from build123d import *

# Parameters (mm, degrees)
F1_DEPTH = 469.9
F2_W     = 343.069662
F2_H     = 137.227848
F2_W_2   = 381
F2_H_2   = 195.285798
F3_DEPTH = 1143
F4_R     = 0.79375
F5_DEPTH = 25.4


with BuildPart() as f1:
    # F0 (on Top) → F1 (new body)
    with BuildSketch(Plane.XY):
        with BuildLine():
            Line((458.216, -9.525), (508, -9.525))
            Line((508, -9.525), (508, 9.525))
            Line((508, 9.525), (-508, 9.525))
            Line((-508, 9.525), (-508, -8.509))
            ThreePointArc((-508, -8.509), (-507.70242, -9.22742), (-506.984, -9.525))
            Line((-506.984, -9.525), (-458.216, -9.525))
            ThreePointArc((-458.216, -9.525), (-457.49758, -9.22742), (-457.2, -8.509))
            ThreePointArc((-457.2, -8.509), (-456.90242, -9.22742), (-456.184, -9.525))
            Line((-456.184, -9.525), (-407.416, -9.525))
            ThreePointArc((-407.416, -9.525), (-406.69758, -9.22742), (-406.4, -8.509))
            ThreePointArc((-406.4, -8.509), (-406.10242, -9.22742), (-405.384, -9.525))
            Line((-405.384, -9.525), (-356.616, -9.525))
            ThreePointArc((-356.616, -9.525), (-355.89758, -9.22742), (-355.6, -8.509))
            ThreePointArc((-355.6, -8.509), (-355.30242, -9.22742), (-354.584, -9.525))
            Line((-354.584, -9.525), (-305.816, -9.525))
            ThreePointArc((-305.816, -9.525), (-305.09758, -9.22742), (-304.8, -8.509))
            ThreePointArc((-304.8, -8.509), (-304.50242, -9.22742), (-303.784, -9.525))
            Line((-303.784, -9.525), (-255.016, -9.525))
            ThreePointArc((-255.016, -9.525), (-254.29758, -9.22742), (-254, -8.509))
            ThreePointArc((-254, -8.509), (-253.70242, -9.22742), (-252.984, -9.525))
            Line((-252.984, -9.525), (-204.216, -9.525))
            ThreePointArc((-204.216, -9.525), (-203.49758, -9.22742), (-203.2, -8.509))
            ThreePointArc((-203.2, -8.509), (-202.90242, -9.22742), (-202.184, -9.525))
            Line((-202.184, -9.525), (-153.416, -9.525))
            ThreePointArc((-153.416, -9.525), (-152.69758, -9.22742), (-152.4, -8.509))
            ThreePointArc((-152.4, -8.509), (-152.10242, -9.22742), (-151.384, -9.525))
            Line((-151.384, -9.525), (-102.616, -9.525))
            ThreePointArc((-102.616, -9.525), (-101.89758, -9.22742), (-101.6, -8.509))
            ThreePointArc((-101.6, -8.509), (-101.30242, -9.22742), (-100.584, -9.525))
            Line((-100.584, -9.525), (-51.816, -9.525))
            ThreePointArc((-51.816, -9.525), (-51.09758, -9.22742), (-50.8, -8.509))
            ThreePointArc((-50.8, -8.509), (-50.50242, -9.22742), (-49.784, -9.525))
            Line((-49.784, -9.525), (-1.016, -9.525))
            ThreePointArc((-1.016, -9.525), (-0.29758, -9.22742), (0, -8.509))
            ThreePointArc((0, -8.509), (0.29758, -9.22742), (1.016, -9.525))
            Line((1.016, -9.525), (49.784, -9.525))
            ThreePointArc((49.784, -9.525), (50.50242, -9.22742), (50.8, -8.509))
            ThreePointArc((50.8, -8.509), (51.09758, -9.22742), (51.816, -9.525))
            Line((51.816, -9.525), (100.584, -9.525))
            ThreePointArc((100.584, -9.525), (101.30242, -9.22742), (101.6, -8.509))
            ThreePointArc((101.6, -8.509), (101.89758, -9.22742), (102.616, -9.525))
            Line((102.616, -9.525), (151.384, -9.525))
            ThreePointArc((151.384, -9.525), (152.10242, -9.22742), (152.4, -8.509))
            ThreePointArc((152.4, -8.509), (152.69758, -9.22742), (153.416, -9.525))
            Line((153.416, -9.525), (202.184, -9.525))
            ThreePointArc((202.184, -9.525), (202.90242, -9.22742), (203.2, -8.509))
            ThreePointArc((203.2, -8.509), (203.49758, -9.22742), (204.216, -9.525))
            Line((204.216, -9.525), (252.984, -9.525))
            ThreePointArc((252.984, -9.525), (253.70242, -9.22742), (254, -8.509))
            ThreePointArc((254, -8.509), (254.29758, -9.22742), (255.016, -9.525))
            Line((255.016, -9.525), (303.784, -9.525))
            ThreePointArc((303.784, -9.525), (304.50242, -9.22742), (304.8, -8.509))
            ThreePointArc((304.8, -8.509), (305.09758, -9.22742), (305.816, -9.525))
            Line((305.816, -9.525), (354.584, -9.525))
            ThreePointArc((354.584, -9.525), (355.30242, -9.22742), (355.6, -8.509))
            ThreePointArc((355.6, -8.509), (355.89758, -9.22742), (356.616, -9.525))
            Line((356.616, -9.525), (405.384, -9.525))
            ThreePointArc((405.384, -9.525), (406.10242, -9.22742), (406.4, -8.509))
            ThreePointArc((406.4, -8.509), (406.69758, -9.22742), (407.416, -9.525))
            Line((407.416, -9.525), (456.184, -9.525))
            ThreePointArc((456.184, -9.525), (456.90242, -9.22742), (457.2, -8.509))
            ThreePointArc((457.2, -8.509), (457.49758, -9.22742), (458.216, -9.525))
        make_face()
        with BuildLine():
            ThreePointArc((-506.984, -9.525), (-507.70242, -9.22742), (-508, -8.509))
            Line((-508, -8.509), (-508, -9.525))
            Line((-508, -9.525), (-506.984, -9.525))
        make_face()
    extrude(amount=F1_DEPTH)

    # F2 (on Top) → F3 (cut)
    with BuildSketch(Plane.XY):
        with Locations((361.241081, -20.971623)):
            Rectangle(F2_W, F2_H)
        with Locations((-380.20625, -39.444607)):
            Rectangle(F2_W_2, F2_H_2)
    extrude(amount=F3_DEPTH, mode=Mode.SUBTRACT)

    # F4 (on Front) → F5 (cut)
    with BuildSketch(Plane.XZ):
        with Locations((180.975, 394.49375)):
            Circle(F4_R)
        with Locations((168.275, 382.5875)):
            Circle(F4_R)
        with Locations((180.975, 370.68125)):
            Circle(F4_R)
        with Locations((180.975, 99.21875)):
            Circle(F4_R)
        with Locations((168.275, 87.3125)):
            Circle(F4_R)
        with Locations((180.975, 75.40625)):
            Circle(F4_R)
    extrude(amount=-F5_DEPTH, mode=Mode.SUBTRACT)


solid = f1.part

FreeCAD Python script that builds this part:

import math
import FreeCAD as App
import Part
import Sketcher

V = App.Vector
Q = App.Units.Quantity

doc = App.newDocument("Part")
params = doc.addObject("Spreadsheet::Sheet", "Params")
for row, (alias, value) in enumerate([
    ("sketch1_width", "40 in"),
    ("sketch1_radius", "0.0400001 in"),
    ("sketch1_height", "0.75 in"),
    ("pad1_length", "18.5 in"),
    ("sketch2_width", "15 in"),
    ("pocket1_length", "45 in"),
    ("sketch3_diameter", "0.0625 in"),
    ("pocket2_length", "1 in"),
], start=1):
    params.set(f"A{row}", alias)
    params.set(f"B{row}", "=" + value)
    params.setAlias(f"B{row}", alias)

body = doc.addObject("PartDesign::Body", "Body")

# Sketch on XY plane
sketch1 = body.newObject("Sketcher::SketchObject", "Sketch")
sketch1.AttachmentSupport = (doc.getObject("XY_Plane"), [""])
sketch1.MapMode = "FlatFace"
sketch1.addGeometry([
    Part.LineSegment(V(458.216, -9.525, 0), V(508, -9.525, 0)),  # 0
    Part.LineSegment(V(508, -9.525, 0), V(508, 9.525, 0)),  # 1
    Part.LineSegment(V(508, 9.525, 0), V(-508, 9.525, 0)),  # 2
    Part.LineSegment(V(-508, 9.525, 0), V(-508, -9.525, 0)),  # 3
    Part.LineSegment(V(-508, -9.525, 0), V(-458.216, -9.525, 0)),  # 4
    Part.ArcOfCircle(Part.Circle(V(-458.216002, -8.508998, 0), V(0, 0, 1), 1.016002), math.radians(-89.999906), math.radians(-0.000094)),  # 5
    Part.ArcOfCircle(Part.Circle(V(-456.183998, -8.508998, 0), V(0, 0, 1), 1.016002), math.radians(-179.999906), math.radians(-90.000094)),  # 6
    Part.LineSegment(V(-456.184, -9.525, 0), V(-407.416, -9.525, 0)),  # 7
    Part.ArcOfCircle(Part.Circle(V(-407.416002, -8.508998, 0), V(0, 0, 1), 1.016002), math.radians(-89.999906), math.radians(-0.000094)),  # 8
    Part.ArcOfCircle(Part.Circle(V(-405.383998, -8.508998, 0), V(0, 0, 1), 1.016002), math.radians(-179.999906), math.radians(-90.000094)),  # 9
    Part.LineSegment(V(-405.384, -9.525, 0), V(-356.616, -9.525, 0)),  # 10
    Part.ArcOfCircle(Part.Circle(V(-356.616002, -8.508998, 0), V(0, 0, 1), 1.016002), math.radians(-89.999906), math.radians(-0.000094)),  # 11
    Part.ArcOfCircle(Part.Circle(V(-354.583998, -8.508998, 0), V(0, 0, 1), 1.016002), math.radians(-179.999906), math.radians(-90.000094)),  # 12
    Part.LineSegment(V(-354.584, -9.525, 0), V(-305.816, -9.525, 0)),  # 13
    Part.ArcOfCircle(Part.Circle(V(-305.816002, -8.508998, 0), V(0, 0, 1), 1.016002), math.radians(-89.999906), math.radians(-0.000094)),  # 14
    Part.ArcOfCircle(Part.Circle(V(-303.783998, -8.508998, 0), V(0, 0, 1), 1.016002), math.radians(-179.999906), math.radians(-90.000094)),  # 15
    Part.LineSegment(V(-303.784, -9.525, 0), V(-255.016, -9.525, 0)),  # 16
    Part.ArcOfCircle(Part.Circle(V(-255.016002, -8.508998, 0), V(0, 0, 1), 1.016002), math.radians(-89.999906), math.radians(-0.000094)),  # 17
    Part.ArcOfCircle(Part.Circle(V(-252.983998, -8.508998, 0), V(0, 0, 1), 1.016002), math.radians(-179.999906), math.radians(-90.000094)),  # 18
    Part.LineSegment(V(-252.984, -9.525, 0), V(-204.216, -9.525, 0)),  # 19
    Part.ArcOfCircle(Part.Circle(V(-204.216002, -8.508998, 0), V(0, 0, 1), 1.016002), math.radians(-89.999906), math.radians(-0.000094)),  # 20
    Part.ArcOfCircle(Part.Circle(V(-202.183998, -8.508998, 0), V(0, 0, 1), 1.016002), math.radians(-179.999906), math.radians(-90.000094)),  # 21
    Part.LineSegment(V(-202.184, -9.525, 0), V(-153.416, -9.525, 0)),  # 22
    Part.ArcOfCircle(Part.Circle(V(-153.416002, -8.508998, 0), V(0, 0, 1), 1.016002), math.radians(-89.999906), math.radians(-0.000094)),  # 23
    Part.ArcOfCircle(Part.Circle(V(-151.383998, -8.508998, 0), V(0, 0, 1), 1.016002), math.radians(-179.999906), math.radians(-90.000094)),  # 24
    Part.LineSegment(V(-151.384, -9.525, 0), V(-102.616, -9.525, 0)),  # 25
    Part.ArcOfCircle(Part.Circle(V(-102.616002, -8.508998, 0), V(0, 0, 1), 1.016002), math.radians(-89.999906), math.radians(-0.000094)),  # 26
    Part.ArcOfCircle(Part.Circle(V(-100.583998, -8.508998, 0), V(0, 0, 1), 1.016002), math.radians(-179.999906), math.radians(-90.000094)),  # 27
    Part.LineSegment(V(-100.584, -9.525, 0), V(-51.816, -9.525, 0)),  # 28
    Part.ArcOfCircle(Part.Circle(V(-51.816002, -8.508998, 0), V(0, 0, 1), 1.016002), math.radians(-89.999906), math.radians(-0.000094)),  # 29
    Part.ArcOfCircle(Part.Circle(V(-49.783998, -8.508998, 0), V(0, 0, 1), 1.016002), math.radians(-179.999906), math.radians(-90.000094)),  # 30
    Part.LineSegment(V(-49.784, -9.525, 0), V(-1.016, -9.525, 0)),  # 31
    Part.ArcOfCircle(Part.Circle(V(-1.016002, -8.508998, 0), V(0, 0, 1), 1.016002), math.radians(-89.999906), math.radians(-0.000094)),  # 32
    Part.ArcOfCircle(Part.Circle(V(1.016002, -8.508998, 0), V(0, 0, 1), 1.016002), math.radians(-179.999906), math.radians(-90.000094)),  # 33
    Part.LineSegment(V(1.016, -9.525, 0), V(49.784, -9.525, 0)),  # 34
    Part.ArcOfCircle(Part.Circle(V(49.783998, -8.508998, 0), V(0, 0, 1), 1.016002), math.radians(-89.999906), math.radians(-0.000094)),  # 35
    Part.ArcOfCircle(Part.Circle(V(51.816002, -8.508998, 0), V(0, 0, 1), 1.016002), math.radians(-179.999906), math.radians(-90.000094)),  # 36
    Part.LineSegment(V(51.816, -9.525, 0), V(100.584, -9.525, 0)),  # 37
    Part.ArcOfCircle(Part.Circle(V(100.583998, -8.508998, 0), V(0, 0, 1), 1.016002), math.radians(-89.999906), math.radians(-0.000094)),  # 38
    Part.ArcOfCircle(Part.Circle(V(102.616002, -8.508998, 0), V(0, 0, 1), 1.016002), math.radians(-179.999906), math.radians(-90.000094)),  # 39
    Part.LineSegment(V(102.616, -9.525, 0), V(151.384, -9.525, 0)),  # 40
    Part.ArcOfCircle(Part.Circle(V(151.383998, -8.508998, 0), V(0, 0, 1), 1.016002), math.radians(-89.999906), math.radians(-0.000094)),  # 41
    Part.ArcOfCircle(Part.Circle(V(153.416002, -8.508998, 0), V(0, 0, 1), 1.016002), math.radians(-179.999906), math.radians(-90.000094)),  # 42
    Part.LineSegment(V(153.416, -9.525, 0), V(202.184, -9.525, 0)),  # 43
    Part.ArcOfCircle(Part.Circle(V(202.183998, -8.508998, 0), V(0, 0, 1), 1.016002), math.radians(-89.999906), math.radians(-0.000094)),  # 44
    Part.ArcOfCircle(Part.Circle(V(204.216002, -8.508998, 0), V(0, 0, 1), 1.016002), math.radians(-179.999906), math.radians(-90.000094)),  # 45
    Part.LineSegment(V(204.216, -9.525, 0), V(252.984, -9.525, 0)),  # 46
    Part.ArcOfCircle(Part.Circle(V(252.983998, -8.508998, 0), V(0, 0, 1), 1.016002), math.radians(-89.999906), math.radians(-0.000094)),  # 47
    Part.ArcOfCircle(Part.Circle(V(255.016002, -8.508998, 0), V(0, 0, 1), 1.016002), math.radians(-179.999906), math.radians(-90.000094)),  # 48
    Part.LineSegment(V(255.016, -9.525, 0), V(303.784, -9.525, 0)),  # 49
    Part.ArcOfCircle(Part.Circle(V(303.783998, -8.508998, 0), V(0, 0, 1), 1.016002), math.radians(-89.999906), math.radians(-0.000094)),  # 50
    Part.ArcOfCircle(Part.Circle(V(305.816002, -8.508998, 0), V(0, 0, 1), 1.016002), math.radians(-179.999906), math.radians(-90.000094)),  # 51
    Part.LineSegment(V(305.816, -9.525, 0), V(354.584, -9.525, 0)),  # 52
    Part.ArcOfCircle(Part.Circle(V(354.583998, -8.508998, 0), V(0, 0, 1), 1.016002), math.radians(-89.999906), math.radians(-0.000094)),  # 53
    Part.ArcOfCircle(Part.Circle(V(356.616002, -8.508998, 0), V(0, 0, 1), 1.016002), math.radians(-179.999906), math.radians(-90.000094)),  # 54
    Part.LineSegment(V(356.616, -9.525, 0), V(405.384, -9.525, 0)),  # 55
    Part.ArcOfCircle(Part.Circle(V(405.383998, -8.508998, 0), V(0, 0, 1), 1.016002), math.radians(-89.999906), math.radians(-0.000094)),  # 56
    Part.ArcOfCircle(Part.Circle(V(407.416002, -8.508998, 0), V(0, 0, 1), 1.016002), math.radians(-179.999906), math.radians(-90.000094)),  # 57
    Part.LineSegment(V(407.416, -9.525, 0), V(456.184, -9.525, 0)),  # 58
    Part.ArcOfCircle(Part.Circle(V(456.183998, -8.508998, 0), V(0, 0, 1), 1.016002), math.radians(-89.999906), math.radians(-0.000094)),  # 59
    Part.ArcOfCircle(Part.Circle(V(458.216002, -8.508998, 0), V(0, 0, 1), 1.016002), math.radians(-179.999906), math.radians(-90.000094)),  # 60
], False)
sketch1.addConstraint([
    Sketcher.Constraint("Coincident", 0, 2, 1, 1),
    Sketcher.Constraint("Coincident", 1, 2, 2, 1),
    Sketcher.Constraint("Coincident", 2, 2, 3, 1),
    Sketcher.Constraint("Coincident", 3, 2, 4, 1),
    Sketcher.Constraint("Tangent", 4, 2, 5, 1),
    Sketcher.Constraint("Coincident", 5, 2, 6, 1),
    Sketcher.Constraint("Tangent", 6, 2, 7, 1),
    Sketcher.Constraint("Tangent", 7, 2, 8, 1),
    Sketcher.Constraint("Coincident", 8, 2, 9, 1),
    Sketcher.Constraint("Tangent", 9, 2, 10, 1),
    Sketcher.Constraint("Tangent", 10, 2, 11, 1),
    Sketcher.Constraint("Coincident", 11, 2, 12, 1),
    Sketcher.Constraint("Tangent", 12, 2, 13, 1),
    Sketcher.Constraint("Tangent", 13, 2, 14, 1),
    Sketcher.Constraint("Coincident", 14, 2, 15, 1),
    Sketcher.Constraint("Tangent", 15, 2, 16, 1),
    Sketcher.Constraint("Tangent", 16, 2, 17, 1),
    Sketcher.Constraint("Coincident", 17, 2, 18, 1),
    Sketcher.Constraint("Tangent", 18, 2, 19, 1),
    Sketcher.Constraint("Tangent", 19, 2, 20, 1),
    Sketcher.Constraint("Coincident", 20, 2, 21, 1),
    Sketcher.Constraint("Tangent", 21, 2, 22, 1),
    Sketcher.Constraint("Tangent", 22, 2, 23, 1),
    Sketcher.Constraint("Coincident", 23, 2, 24, 1),
    Sketcher.Constraint("Tangent", 24, 2, 25, 1),
    Sketcher.Constraint("Tangent", 25, 2, 26, 1),
    Sketcher.Constraint("Coincident", 26, 2, 27, 1),
    Sketcher.Constraint("Tangent", 27, 2, 28, 1),
    Sketcher.Constraint("Tangent", 28, 2, 29, 1),
    Sketcher.Constraint("Coincident", 29, 2, 30, 1),
    Sketcher.Constraint("Tangent", 30, 2, 31, 1),
    Sketcher.Constraint("Tangent", 31, 2, 32, 1),
    Sketcher.Constraint("Coincident", 32, 2, 33, 1),
    Sketcher.Constraint("Tangent", 33, 2, 34, 1),
    Sketcher.Constraint("Tangent", 34, 2, 35, 1),
    Sketcher.Constraint("Coincident", 35, 2, 36, 1),
    Sketcher.Constraint("Tangent", 36, 2, 37, 1),
    Sketcher.Constraint("Tangent", 37, 2, 38, 1),
    Sketcher.Constraint("Coincident", 38, 2, 39, 1),
    Sketcher.Constraint("Tangent", 39, 2, 40, 1),
    Sketcher.Constraint("Tangent", 40, 2, 41, 1),
    Sketcher.Constraint("Coincident", 41, 2, 42, 1),
    Sketcher.Constraint("Tangent", 42, 2, 43, 1),
    Sketcher.Constraint("Tangent", 43, 2, 44, 1),
    Sketcher.Constraint("Coincident", 44, 2, 45, 1),
    Sketcher.Constraint("Tangent", 45, 2, 46, 1),
    Sketcher.Constraint("Tangent", 46, 2, 47, 1),
    Sketcher.Constraint("Coincident", 47, 2, 48, 1),
    Sketcher.Constraint("Tangent", 48, 2, 49, 1),
    Sketcher.Constraint("Tangent", 49, 2, 50, 1),
    Sketcher.Constraint("Coincident", 50, 2, 51, 1),
    Sketcher.Constraint("Tangent", 51, 2, 52, 1),
    Sketcher.Constraint("Tangent", 52, 2, 53, 1),
    Sketcher.Constraint("Coincident", 53, 2, 54, 1),
    Sketcher.Constraint("Tangent", 54, 2, 55, 1),
    Sketcher.Constraint("Tangent", 55, 2, 56, 1),
    Sketcher.Constraint("Coincident", 56, 2, 57, 1),
    Sketcher.Constraint("Tangent", 57, 2, 58, 1),
    Sketcher.Constraint("Tangent", 58, 2, 59, 1),
    Sketcher.Constraint("Coincident", 59, 2, 60, 1),
    Sketcher.Constraint("Tangent", 60, 2, 0, 1),
    Sketcher.Constraint("Horizontal", 0),
    Sketcher.Constraint("Vertical", 1),
    Sketcher.Constraint("Horizontal", 2),
    Sketcher.Constraint("Vertical", 3),
    Sketcher.Constraint("Horizontal", 4),
    Sketcher.Constraint("Horizontal", 7),
    Sketcher.Constraint("Horizontal", 10),
    Sketcher.Constraint("Horizontal", 13),
    Sketcher.Constraint("Horizontal", 16),
    Sketcher.Constraint("Horizontal", 19),
    Sketcher.Constraint("Horizontal", 22),
    Sketcher.Constraint("Horizontal", 25),
    Sketcher.Constraint("Horizontal", 28),
    Sketcher.Constraint("Horizontal", 31),
    Sketcher.Constraint("Horizontal", 34),
    Sketcher.Constraint("Horizontal", 37),
    Sketcher.Constraint("Horizontal", 40),
    Sketcher.Constraint("Horizontal", 43),
    Sketcher.Constraint("Horizontal", 46),
    Sketcher.Constraint("Horizontal", 49),
    Sketcher.Constraint("Horizontal", 52),
    Sketcher.Constraint("Horizontal", 55),
    Sketcher.Constraint("Horizontal", 58),
    Sketcher.Constraint("Equal", 5, 6),
    Sketcher.Constraint("Equal", 6, 8),
    Sketcher.Constraint("Equal", 8, 9),
    Sketcher.Constraint("Equal", 9, 11),
    Sketcher.Constraint("Equal", 11, 12),
    Sketcher.Constraint("Equal", 12, 14),
    Sketcher.Constraint("Equal", 14, 15),
    Sketcher.Constraint("Equal", 15, 17),
    Sketcher.Constraint("Equal", 17, 18),
    Sketcher.Constraint("Equal", 18, 20),
    Sketcher.Constraint("Equal", 20, 21),
    Sketcher.Constraint("Equal", 21, 23),
    Sketcher.Constraint("Equal", 23, 24),
    Sketcher.Constraint("Equal", 24, 26),
    Sketcher.Constraint("Equal", 26, 27),
    Sketcher.Constraint("Equal", 27, 29),
    Sketcher.Constraint("Equal", 29, 30),
    Sketcher.Constraint("Equal", 30, 32),
    Sketcher.Constraint("Equal", 32, 33),
    Sketcher.Constraint("Equal", 33, 35),
    Sketcher.Constraint("Equal", 35, 36),
    Sketcher.Constraint("Equal", 36, 38),
    Sketcher.Constraint("Equal", 38, 39),
    Sketcher.Constraint("Equal", 39, 41),
    Sketcher.Constraint("Equal", 41, 42),
    Sketcher.Constraint("Equal", 42, 44),
    Sketcher.Constraint("Equal", 44, 45),
    Sketcher.Constraint("Equal", 45, 47),
    Sketcher.Constraint("Equal", 47, 48),
    Sketcher.Constraint("Equal", 48, 50),
    Sketcher.Constraint("Equal", 50, 51),
    Sketcher.Constraint("Equal", 51, 53),
    Sketcher.Constraint("Equal", 53, 54),
    Sketcher.Constraint("Equal", 54, 56),
    Sketcher.Constraint("Equal", 56, 57),
    Sketcher.Constraint("Equal", 57, 59),
    Sketcher.Constraint("Equal", 59, 60),
    Sketcher.Constraint("Symmetric", 0, 2, 2, 2, -1, 1),
    Sketcher.Constraint("Symmetric", 32, 3, 33, 3, -2),
    Sketcher.Constraint("Symmetric", 29, 3, 36, 3, -2),
    Sketcher.Constraint("Symmetric", 26, 3, 39, 3, -2),
    Sketcher.Constraint("Symmetric", 23, 3, 42, 3, -2),
    Sketcher.Constraint("Symmetric", 20, 3, 45, 3, -2),
    Sketcher.Constraint("Symmetric", 17, 3, 48, 3, -2),
    Sketcher.Constraint("Symmetric", 14, 3, 51, 3, -2),
    Sketcher.Constraint("Symmetric", 11, 3, 54, 3, -2),
    Sketcher.Constraint("Symmetric", 8, 3, 57, 3, -2),
    Sketcher.Constraint("Symmetric", 5, 3, 60, 3, -2),
    Sketcher.Constraint("Horizontal", 5, 3, 6, 3),
    Sketcher.Constraint("Horizontal", 8, 3, 9, 3),
    Sketcher.Constraint("Horizontal", 11, 3, 12, 3),
    Sketcher.Constraint("Horizontal", 14, 3, 15, 3),
    Sketcher.Constraint("Horizontal", 17, 3, 18, 3),
    Sketcher.Constraint("Horizontal", 20, 3, 21, 3),
    Sketcher.Constraint("Horizontal", 23, 3, 24, 3),
    Sketcher.Constraint("Horizontal", 26, 3, 27, 3),
    Sketcher.Constraint("Horizontal", 29, 3, 30, 3),
    Sketcher.Constraint("Horizontal", 60, 3, 5, 2),
    Sketcher.Constraint("Horizontal", 5, 2, 8, 2),
    Sketcher.Constraint("Horizontal", 8, 2, 11, 2),
    Sketcher.Constraint("Horizontal", 11, 2, 14, 2),
    Sketcher.Constraint("Horizontal", 14, 2, 17, 2),
    Sketcher.Constraint("Horizontal", 17, 2, 20, 2),
    Sketcher.Constraint("Horizontal", 20, 2, 23, 2),
    Sketcher.Constraint("Horizontal", 23, 2, 26, 2),
    Sketcher.Constraint("Horizontal", 26, 2, 29, 2),
    Sketcher.Constraint("Horizontal", 29, 2, 32, 2),
    Sketcher.Constraint("Horizontal", 32, 2, 35, 2),
    Sketcher.Constraint("Horizontal", 35, 2, 38, 2),
    Sketcher.Constraint("Horizontal", 38, 2, 41, 2),
    Sketcher.Constraint("Horizontal", 41, 2, 44, 2),
    Sketcher.Constraint("Horizontal", 44, 2, 47, 2),
    Sketcher.Constraint("Horizontal", 47, 2, 50, 2),
    Sketcher.Constraint("Horizontal", 50, 2, 53, 2),
    Sketcher.Constraint("Horizontal", 53, 2, 56, 2),
    Sketcher.Constraint("Horizontal", 56, 2, 59, 2),
    Sketcher.Constraint("Equal", 7, 10),
    Sketcher.Constraint("Equal", 10, 13),
    Sketcher.Constraint("Equal", 13, 16),
    Sketcher.Constraint("Equal", 16, 19),
    Sketcher.Constraint("Equal", 19, 22),
    Sketcher.Constraint("Equal", 22, 25),
    Sketcher.Constraint("Equal", 25, 28),
    Sketcher.Constraint("Equal", 28, 31),
    Sketcher.Constraint("DistanceX", 2, 2, 2, 1, Q("40 in")),
    Sketcher.Constraint("Radius", 5, Q("0.0400001 in")),
    Sketcher.Constraint("DistanceX", 5, 2, -1, 1, Q("18 in")),
    Sketcher.Constraint("DistanceY", 1, 1, 1, 2, Q("0.75 in")),
])
sketch1.setExpression("Constraints[168]", "Params.sketch1_width")
sketch1.setExpression("Constraints[169]", "Params.sketch1_radius")
sketch1.setExpression("Constraints[171]", "Params.sketch1_height")
pad1 = body.newObject("PartDesign::Pad", "Pad")
pad1.Profile = sketch1
pad1.setExpression("Length", "Params.pad1_length")

# Sketch on XY plane
sketch2 = body.newObject("Sketcher::SketchObject", "Sketch001")
sketch2.AttachmentSupport = (doc.getObject("XY_Plane"), [""])
sketch2.MapMode = "FlatFace"
sketch2.addGeometry([
    Part.LineSegment(V(189.70625, 47.642301, 0), V(189.70625, -89.585547, 0)),  # 0
    Part.LineSegment(V(189.70625, -89.585547, 0), V(532.775912, -89.585547, 0)),  # 1
    Part.LineSegment(V(532.775912, -89.585547, 0), V(532.775912, 47.642301, 0)),  # 2
    Part.LineSegment(V(532.775912, 47.642301, 0), V(189.70625, 47.642301, 0)),  # 3
    Part.LineSegment(V(-570.70625, 58.198292, 0), V(-570.70625, -137.087506, 0)),  # 4
    Part.LineSegment(V(-570.70625, -137.087506, 0), V(-189.70625, -137.087506, 0)),  # 5
    Part.LineSegment(V(-189.70625, -137.087506, 0), V(-189.70625, 58.198292, 0)),  # 6
    Part.LineSegment(V(-189.70625, 58.198292, 0), V(-570.70625, 58.198292, 0)),  # 7
], False)
sketch2.addConstraint([
    Sketcher.Constraint("Coincident", 0, 2, 1, 1),
    Sketcher.Constraint("Coincident", 1, 2, 2, 1),
    Sketcher.Constraint("Coincident", 2, 2, 3, 1),
    Sketcher.Constraint("Coincident", 3, 2, 0, 1),
    Sketcher.Constraint("Coincident", 4, 2, 5, 1),
    Sketcher.Constraint("Coincident", 5, 2, 6, 1),
    Sketcher.Constraint("Coincident", 6, 2, 7, 1),
    Sketcher.Constraint("Coincident", 7, 2, 4, 1),
    Sketcher.Constraint("Vertical", 0),
    Sketcher.Constraint("Horizontal", 1),
    Sketcher.Constraint("Vertical", 2),
    Sketcher.Constraint("Horizontal", 3),
    Sketcher.Constraint("Vertical", 4),
    Sketcher.Constraint("Horizontal", 5),
    Sketcher.Constraint("Vertical", 6),
    Sketcher.Constraint("Horizontal", 7),
    Sketcher.Constraint("DistanceX", 5, 1, 5, 2, Q("15 in")),
    Sketcher.Constraint("DistanceX", -1, 1, 0, 2, Q("7.46875 in")),
    Sketcher.Constraint("DistanceX", 4, 2, -1, 1, Q("22.46875 in")),
    Sketcher.Constraint("DistanceY", 4, 2, 4, 1, 195.285798),
    Sketcher.Constraint("DistanceX", 1, 1, 1, 2, 343.069662),
    Sketcher.Constraint("DistanceY", 0, 2, 0, 1, 137.227848),
    Sketcher.Constraint("DistanceY", -1, 1, 2, 2, 47.642301),
    Sketcher.Constraint("DistanceY", 4, 2, 0, 2, 47.501959),
])
sketch2.setExpression("Constraints[16]", "Params.sketch2_width")
pocket1 = body.newObject("PartDesign::Pocket", "Pocket")
pocket1.Profile = sketch2
pocket1.setExpression("Length", "Params.pocket1_length")
pocket1.Reversed = True

# Sketch on XZ plane
sketch3 = body.newObject("Sketcher::SketchObject", "Sketch002")
sketch3.AttachmentSupport = (doc.getObject("XZ_Plane"), [""])
sketch3.MapMode = "FlatFace"
sketch3.addGeometry([
    Part.Circle(V(180.975, 394.49375, 0), V(0, 0, 1), 0.79375),  # 0
    Part.Circle(V(168.275, 382.5875, 0), V(0, 0, 1), 0.79375),  # 1
    Part.Circle(V(180.975, 370.68125, 0), V(0, 0, 1), 0.79375),  # 2
    Part.Circle(V(180.975, 99.21875, 0), V(0, 0, 1), 0.79375),  # 3
    Part.Circle(V(168.275, 87.3125, 0), V(0, 0, 1), 0.79375),  # 4
    Part.Circle(V(180.975, 75.40625, 0), V(0, 0, 1), 0.79375),  # 5
], False)
sketch3.addConstraint([
    Sketcher.Constraint("Equal", 0, 1),
    Sketcher.Constraint("Equal", 1, 2),
    Sketcher.Constraint("Equal", 2, 3),
    Sketcher.Constraint("Equal", 3, 4),
    Sketcher.Constraint("Equal", 4, 5),
    Sketcher.Constraint("Vertical", 0, 3, 2, 3),
    Sketcher.Constraint("Vertical", 2, 3, 3, 3),
    Sketcher.Constraint("Vertical", 1, 3, 4, 3),
    Sketcher.Constraint("Vertical", 3, 3, 5, 3),
    Sketcher.Constraint("Diameter", 0, Q("0.0625 in")),
    Sketcher.Constraint("DistanceX", 1, 3, 0, 3, Q("0.5 in")),
    Sketcher.Constraint("DistanceX", -1, 1, 0, 3, Q("7.125 in")),
    Sketcher.Constraint("DistanceY", -1, 1, 0, 3, Q("15.53125 in")),
    Sketcher.Constraint("DistanceY", -1, 1, 1, 3, Q("15.0625 in")),
    Sketcher.Constraint("DistanceY", -1, 1, 2, 3, Q("14.59375 in")),
    Sketcher.Constraint("DistanceY", -1, 1, 3, 3, Q("3.90625 in")),
    Sketcher.Constraint("DistanceY", -1, 1, 4, 3, Q("3.4375 in")),
    Sketcher.Constraint("DistanceY", -1, 1, 5, 3, Q("2.96875 in")),
])
sketch3.setExpression("Constraints[9]", "Params.sketch3_diameter")
pocket2 = body.newObject("PartDesign::Pocket", "Pocket001")
pocket2.Profile = sketch3
pocket2.setExpression("Length", "Params.pocket2_length")

doc.recompute()
